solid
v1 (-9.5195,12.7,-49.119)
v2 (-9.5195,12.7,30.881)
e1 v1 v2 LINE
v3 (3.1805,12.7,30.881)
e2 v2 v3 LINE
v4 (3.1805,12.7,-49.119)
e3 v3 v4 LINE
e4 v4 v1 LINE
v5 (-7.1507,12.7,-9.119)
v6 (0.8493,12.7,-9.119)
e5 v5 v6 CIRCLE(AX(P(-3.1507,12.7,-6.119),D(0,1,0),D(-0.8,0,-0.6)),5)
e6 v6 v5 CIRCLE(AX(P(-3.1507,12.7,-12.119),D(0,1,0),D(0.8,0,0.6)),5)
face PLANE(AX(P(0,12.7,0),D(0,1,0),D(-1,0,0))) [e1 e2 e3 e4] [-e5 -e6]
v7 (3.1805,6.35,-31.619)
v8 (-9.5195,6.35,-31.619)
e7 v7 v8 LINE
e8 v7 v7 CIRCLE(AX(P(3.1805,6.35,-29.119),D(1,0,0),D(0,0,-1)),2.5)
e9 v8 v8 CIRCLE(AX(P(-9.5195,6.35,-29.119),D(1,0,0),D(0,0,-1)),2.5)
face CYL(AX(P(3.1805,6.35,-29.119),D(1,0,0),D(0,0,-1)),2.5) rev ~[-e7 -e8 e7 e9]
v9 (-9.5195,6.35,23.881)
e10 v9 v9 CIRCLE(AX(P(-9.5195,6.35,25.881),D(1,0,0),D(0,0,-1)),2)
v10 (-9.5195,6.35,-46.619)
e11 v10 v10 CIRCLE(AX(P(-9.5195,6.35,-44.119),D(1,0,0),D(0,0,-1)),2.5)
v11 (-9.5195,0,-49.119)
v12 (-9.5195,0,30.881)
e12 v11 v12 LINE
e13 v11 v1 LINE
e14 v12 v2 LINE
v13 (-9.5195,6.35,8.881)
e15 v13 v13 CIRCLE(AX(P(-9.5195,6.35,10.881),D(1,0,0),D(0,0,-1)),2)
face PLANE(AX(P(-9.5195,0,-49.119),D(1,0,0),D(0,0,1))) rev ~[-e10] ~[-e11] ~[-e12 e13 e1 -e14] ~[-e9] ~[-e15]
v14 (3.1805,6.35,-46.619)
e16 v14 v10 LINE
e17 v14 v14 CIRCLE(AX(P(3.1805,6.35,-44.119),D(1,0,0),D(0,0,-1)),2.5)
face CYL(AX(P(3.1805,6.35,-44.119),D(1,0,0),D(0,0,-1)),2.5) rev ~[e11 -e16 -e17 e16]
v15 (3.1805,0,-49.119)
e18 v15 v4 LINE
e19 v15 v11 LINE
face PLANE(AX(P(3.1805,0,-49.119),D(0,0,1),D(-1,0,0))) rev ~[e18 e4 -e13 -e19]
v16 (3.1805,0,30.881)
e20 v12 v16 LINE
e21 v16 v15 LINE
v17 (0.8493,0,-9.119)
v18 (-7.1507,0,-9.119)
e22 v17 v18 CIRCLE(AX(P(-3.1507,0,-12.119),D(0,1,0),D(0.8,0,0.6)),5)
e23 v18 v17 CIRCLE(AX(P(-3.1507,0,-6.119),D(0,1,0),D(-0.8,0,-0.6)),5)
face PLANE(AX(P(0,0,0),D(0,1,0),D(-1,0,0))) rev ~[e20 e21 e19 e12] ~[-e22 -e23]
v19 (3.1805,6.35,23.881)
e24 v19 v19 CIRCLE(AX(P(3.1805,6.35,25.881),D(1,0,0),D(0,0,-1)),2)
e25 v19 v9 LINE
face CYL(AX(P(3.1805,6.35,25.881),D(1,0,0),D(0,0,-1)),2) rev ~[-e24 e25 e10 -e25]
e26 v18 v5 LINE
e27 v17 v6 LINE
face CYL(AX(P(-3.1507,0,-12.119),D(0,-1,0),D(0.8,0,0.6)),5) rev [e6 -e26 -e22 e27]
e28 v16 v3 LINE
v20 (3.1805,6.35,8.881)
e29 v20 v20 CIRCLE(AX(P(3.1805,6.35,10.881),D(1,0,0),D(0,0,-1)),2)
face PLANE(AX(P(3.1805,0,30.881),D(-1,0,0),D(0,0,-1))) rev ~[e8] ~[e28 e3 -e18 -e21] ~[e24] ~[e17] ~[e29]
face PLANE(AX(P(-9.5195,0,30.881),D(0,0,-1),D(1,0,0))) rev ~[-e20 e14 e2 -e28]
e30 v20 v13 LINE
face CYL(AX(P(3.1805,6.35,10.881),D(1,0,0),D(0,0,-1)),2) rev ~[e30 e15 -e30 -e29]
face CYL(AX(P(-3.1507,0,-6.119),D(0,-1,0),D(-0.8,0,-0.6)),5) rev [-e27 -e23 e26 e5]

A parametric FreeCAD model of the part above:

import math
import FreeCAD as App
import Part
import Sketcher

V = App.Vector
Q = App.Units.Quantity

doc = App.newDocument("Part")
body = doc.addObject("PartDesign::Body", "Body")

# Sketch on XZ plane
sketch1 = doc.addObject("Sketcher::SketchObject", "Sketch")
body.addObject(sketch1)
sketch1.AttachmentSupport = (doc.XZ_Plane, [""])
sketch1.MapMode = "FlatFace"
sketch1.addGeometry(Part.LineSegment(V(-9.5195, -49.119, 0), V(-9.5195, 30.881, 0)), False)
sketch1.addGeometry(Part.LineSegment(V(-9.5195, 30.881, 0), V(3.1805, 30.881, 0)), False)
sketch1.addGeometry(Part.LineSegment(V(3.1805, 30.881, 0), V(3.1805, -49.119, 0)), False)
sketch1.addGeometry(Part.LineSegment(V(3.1805, -49.119, 0), V(-9.5195, -49.119, 0)), False)
sketch1.addGeometry(Part.ArcOfCircle(Part.Circle(V(-3.1507, -12.119, 0), V(0, 0, 1), 5), math.radians(143.130102), math.radians(396.869898)), False)
sketch1.addGeometry(Part.ArcOfCircle(Part.Circle(V(-3.1507, -6.119, 0), V(0, 0, 1), 5), math.radians(-36.869898), math.radians(216.869898)), False)
sketch1.addConstraint(Sketcher.Constraint("Coincident", 0, 2, 1, 1))
sketch1.addConstraint(Sketcher.Constraint("Coincident", 1, 2, 2, 1))
sketch1.addConstraint(Sketcher.Constraint("Coincident", 2, 2, 3, 1))
sketch1.addConstraint(Sketcher.Constraint("Coincident", 3, 2, 0, 1))
sketch1.addConstraint(Sketcher.Constraint("Coincident", 4, 1, 5, 2))
sketch1.addConstraint(Sketcher.Constraint("Coincident", 5, 1, 4, 2))
sketch1.addConstraint(Sketcher.Constraint("Vertical", 0))
sketch1.addConstraint(Sketcher.Constraint("Horizontal", 1))
sketch1.addConstraint(Sketcher.Constraint("Vertical", 2))
sketch1.addConstraint(Sketcher.Constraint("Horizontal", 3))
sketch1.addConstraint(Sketcher.Constraint("Equal", 4, 5))
sketch1.addConstraint(Sketcher.Constraint("Horizontal", 4, 1, 5, 1))
sketch1.addConstraint(Sketcher.Constraint("DistanceY", 0, 1, 0, 2, Q("80 mm")))
sketch1.addConstraint(Sketcher.Constraint("DistanceX", 1, 1, 1, 2, Q("12.7 mm")))
sketch1.addConstraint(Sketcher.Constraint("Radius", 4, Q("5 mm")))
sketch1.addConstraint(Sketcher.Constraint("DistanceY", 4, 3, 5, 3, Q("6 mm")))
sketch1.addConstraint(Sketcher.Constraint("DistanceY", 5, 3, 0, 2, Q("37 mm")))
sketch1.addConstraint(Sketcher.Constraint("DistanceY", 4, 3, -1, 1, Q("12.119 mm")))
sketch1.addConstraint(Sketcher.Constraint("DistanceX", 4, 3, -1, 1, Q("3.1507 mm")))
sketch1.addConstraint(Sketcher.Constraint("DistanceX", 0, 2, -1, 1, Q("9.5195 mm")))
pad1 = doc.addObject("PartDesign::Pad", "Pad")
body.addObject(pad1)
pad1.Profile = sketch1
pad1.Length = 12.7
pad1.Reversed = True

# Sketch on YZ plane
sketch2 = doc.addObject("Sketcher::SketchObject", "Sketch001")
body.addObject(sketch2)
sketch2.AttachmentSupport = (doc.YZ_Plane, [""])
sketch2.MapMode = "FlatFace"
sketch2.AttachmentOffset = App.Placement(V(0, 0, 3.1805), App.Rotation())
sketch2.addGeometry(Part.Circle(V(6.35, 10.881, 0), V(0, 0, 1), 2), False)
sketch2.addGeometry(Part.Circle(V(6.35, 25.881, 0), V(0, 0, 1), 2), False)
sketch2.addGeometry(Part.Circle(V(6.35, -29.119, 0), V(0, 0, 1), 2.5), False)
sketch2.addGeometry(Part.Circle(V(6.35, -44.119, 0), V(0, 0, 1), 2.5), False)
sketch2.addConstraint(Sketcher.Constraint("Equal", 0, 1))
sketch2.addConstraint(Sketcher.Constraint("Equal", 2, 3))
sketch2.addConstraint(Sketcher.Constraint("Vertical", 0, 3, 1, 3))
sketch2.addConstraint(Sketcher.Constraint("Vertical", 1, 3, 2, 3))
sketch2.addConstraint(Sketcher.Constraint("Vertical", 2, 3, 3, 3))
sketch2.addConstraint(Sketcher.Constraint("Diameter", 0, Q("4 mm")))
sketch2.addConstraint(Sketcher.Constraint("Diameter", 2, Q("5 mm")))
sketch2.addConstraint(Sketcher.Constraint("DistanceY", 0, 3, 1, 3, Q("15 mm")))
sketch2.addConstraint(Sketcher.Constraint("DistanceY", 3, 3, 2, 3, Q("15 mm")))
sketch2.addConstraint(Sketcher.Constraint("DistanceX", -1, 1, 0, 3, Q("6.35 mm")))
sketch2.addConstraint(Sketcher.Constraint("DistanceY", 2, 3, 0, 3, Q("40 mm")))
sketch2.addConstraint(Sketcher.Constraint("DistanceY", -1, 1, 0, 3, Q("10.881 mm")))
pocket1 = doc.addObject("PartDesign::Pocket", "Pocket")
body.addObject(pocket1)
pocket1.Profile = sketch2
pocket1.Length = 12.7

doc.recompute()
